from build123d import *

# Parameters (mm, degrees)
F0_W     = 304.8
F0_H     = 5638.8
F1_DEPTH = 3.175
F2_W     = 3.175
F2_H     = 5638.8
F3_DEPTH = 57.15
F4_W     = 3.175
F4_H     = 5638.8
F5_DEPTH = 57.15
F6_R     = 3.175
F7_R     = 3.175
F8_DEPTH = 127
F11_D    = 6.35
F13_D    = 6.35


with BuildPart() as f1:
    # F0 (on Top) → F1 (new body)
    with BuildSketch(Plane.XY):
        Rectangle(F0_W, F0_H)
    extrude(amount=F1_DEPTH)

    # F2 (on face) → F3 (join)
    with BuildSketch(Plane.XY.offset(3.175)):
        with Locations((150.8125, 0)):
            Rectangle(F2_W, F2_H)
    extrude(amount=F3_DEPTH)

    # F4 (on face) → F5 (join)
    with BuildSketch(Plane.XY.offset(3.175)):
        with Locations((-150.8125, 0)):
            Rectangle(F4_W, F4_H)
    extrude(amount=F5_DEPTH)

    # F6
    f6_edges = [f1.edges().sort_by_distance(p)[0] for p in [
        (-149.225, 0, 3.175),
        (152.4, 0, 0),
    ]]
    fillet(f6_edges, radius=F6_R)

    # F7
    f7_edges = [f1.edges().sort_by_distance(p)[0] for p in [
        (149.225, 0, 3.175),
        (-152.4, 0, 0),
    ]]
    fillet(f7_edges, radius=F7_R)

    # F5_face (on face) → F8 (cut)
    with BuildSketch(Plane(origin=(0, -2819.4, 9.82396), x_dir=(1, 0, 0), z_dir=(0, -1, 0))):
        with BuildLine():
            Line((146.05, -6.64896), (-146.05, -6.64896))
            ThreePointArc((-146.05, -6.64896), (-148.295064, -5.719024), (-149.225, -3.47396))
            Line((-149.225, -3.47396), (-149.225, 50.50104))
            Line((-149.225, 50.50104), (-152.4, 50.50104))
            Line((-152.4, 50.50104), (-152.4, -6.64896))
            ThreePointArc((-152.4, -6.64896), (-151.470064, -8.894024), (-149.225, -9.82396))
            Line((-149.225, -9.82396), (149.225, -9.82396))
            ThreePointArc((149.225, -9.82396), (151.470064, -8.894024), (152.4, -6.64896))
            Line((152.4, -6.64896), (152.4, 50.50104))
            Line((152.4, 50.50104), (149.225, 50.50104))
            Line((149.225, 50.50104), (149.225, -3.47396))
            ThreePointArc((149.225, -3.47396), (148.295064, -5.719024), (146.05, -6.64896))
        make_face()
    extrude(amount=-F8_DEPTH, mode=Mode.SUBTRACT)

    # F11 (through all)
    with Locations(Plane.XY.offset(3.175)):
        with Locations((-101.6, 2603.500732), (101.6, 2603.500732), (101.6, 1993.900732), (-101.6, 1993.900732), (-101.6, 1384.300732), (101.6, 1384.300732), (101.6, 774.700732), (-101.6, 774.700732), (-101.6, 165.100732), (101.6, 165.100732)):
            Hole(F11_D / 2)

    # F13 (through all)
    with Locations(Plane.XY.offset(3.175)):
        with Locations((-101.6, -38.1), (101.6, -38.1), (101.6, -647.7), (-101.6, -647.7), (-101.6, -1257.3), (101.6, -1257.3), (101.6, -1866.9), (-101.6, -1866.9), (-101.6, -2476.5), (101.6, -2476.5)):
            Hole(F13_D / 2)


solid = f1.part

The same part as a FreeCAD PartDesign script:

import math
import FreeCAD as App
import Part
import Sketcher
Q = App.Units.Quantity


def edges_at(feature, points):
    """Names of the edges that pass closest to the given points."""
    edges = feature.Shape.Edges
    near = lambda p: min(range(len(edges)), key=lambda i: edges[i].distToShape(Part.Vertex(*p))[0])
    return sorted({f"Edge{near(p) + 1}" for p in points})

doc = App.newDocument("Part")
body = doc.addObject("PartDesign::Body", "Body")

# Sketch on XY plane
sketch1 = body.newObject("Sketcher::SketchObject", "Sketch")
sketch1.AttachmentSupport = (doc.getObject("XY_Plane"), [""])
sketch1.MapMode = "FlatFace"
sketch1.addGeometry(Part.LineSegment(App.Vector(-152.4, 2819.4, 0), App.Vector(-152.4, -2819.4, 0)), False)
sketch1.addGeometry(Part.LineSegment(App.Vector(-152.4, -2819.4, 0), App.Vector(152.4, -2819.4, 0)), False)
sketch1.addGeometry(Part.LineSegment(App.Vector(152.4, -2819.4, 0), App.Vector(152.4, 2819.4, 0)), False)
sketch1.addGeometry(Part.LineSegment(App.Vector(152.4, 2819.4, 0), App.Vector(-152.4, 2819.4, 0)), False)
sketch1.addConstraint(Sketcher.Constraint("Coincident", 0, 2, 1, 1))
sketch1.addConstraint(Sketcher.Constraint("Coincident", 1, 2, 2, 1))
sketch1.addConstraint(Sketcher.Constraint("Coincident", 2, 2, 3, 1))
sketch1.addConstraint(Sketcher.Constraint("Coincident", 3, 2, 0, 1))
sketch1.addConstraint(Sketcher.Constraint("Vertical", 0))
sketch1.addConstraint(Sketcher.Constraint("Horizontal", 1))
sketch1.addConstraint(Sketcher.Constraint("Vertical", 2))
sketch1.addConstraint(Sketcher.Constraint("Horizontal", 3))
sketch1.addConstraint(Sketcher.Constraint("Symmetric", 0, 2, 2, 2, -1, 1))
sketch1.addConstraint(Sketcher.Constraint("DistanceX", 1, 1, 1, 2, Q("12 in")))
sketch1.addConstraint(Sketcher.Constraint("DistanceY", 0, 2, 0, 1, Q("222 in")))
pad1 = body.newObject("PartDesign::Pad", "Pad")
pad1.Profile = sketch1
pad1.Length = Q("0.125 in")

# Sketch on XY plane
sketch2 = body.newObject("Sketcher::SketchObject", "Sketch001")
sketch2.AttachmentSupport = (doc.getObject("XY_Plane"), [""])
sketch2.MapMode = "FlatFace"
sketch2.AttachmentOffset = App.Placement(App.Vector(0, 0, 0.125 * 25.4), App.Rotation())
sketch2.addGeometry(Part.LineSegment(App.Vector(149.225, 2819.4, 0), App.Vector(149.225, -2819.4, 0)), False)
sketch2.addGeometry(Part.LineSegment(App.Vector(149.225, -2819.4, 0), App.Vector(152.4, -2819.4, 0)), False)
sketch2.addGeometry(Part.LineSegment(App.Vector(152.4, -2819.4, 0), App.Vector(152.4, 2819.4, 0)), False)
sketch2.addGeometry(Part.LineSegment(App.Vector(152.4, 2819.4, 0), App.Vector(149.225, 2819.4, 0)), False)
sketch2.addConstraint(Sketcher.Constraint("Coincident", 0, 2, 1, 1))
sketch2.addConstraint(Sketcher.Constraint("Coincident", 1, 2, 2, 1))
sketch2.addConstraint(Sketcher.Constraint("Coincident", 2, 2, 3, 1))
sketch2.addConstraint(Sketcher.Constraint("Coincident", 3, 2, 0, 1))
sketch2.addConstraint(Sketcher.Constraint("Vertical", 0))
sketch2.addConstraint(Sketcher.Constraint("Horizontal", 1))
sketch2.addConstraint(Sketcher.Constraint("Vertical", 2))
sketch2.addConstraint(Sketcher.Constraint("Horizontal", 3))
sketch2.addConstraint(Sketcher.Constraint("DistanceY", 0, 2, 0, 1, Q("222 in")))
sketch2.addConstraint(Sketcher.Constraint("DistanceY", 0, 2, -1, 1, Q("111 in")))
sketch2.addConstraint(Sketcher.Constraint("DistanceX", -1, 1, 1, 2, Q("6 in")))
sketch2.addConstraint(Sketcher.Constraint("DistanceX", 1, 1, 1, 2, Q("0.125 in")))
pad2 = body.newObject("PartDesign::Pad", "Pad001")
pad2.Profile = sketch2
pad2.Length = Q("2.25 in")

# Sketch on XY plane
sketch3 = body.newObject("Sketcher::SketchObject", "Sketch002")
sketch3.AttachmentSupport = (doc.getObject("XY_Plane"), [""])
sketch3.MapMode = "FlatFace"
sketch3.AttachmentOffset = App.Placement(App.Vector(0, 0, 0.125 * 25.4), App.Rotation())
sketch3.addGeometry(Part.LineSegment(App.Vector(-152.4, 2819.4, 0), App.Vector(-152.4, -2819.4, 0)), False)
sketch3.addGeometry(Part.LineSegment(App.Vector(-152.4, -2819.4, 0), App.Vector(-149.225, -2819.4, 0)), False)
sketch3.addGeometry(Part.LineSegment(App.Vector(-149.225, -2819.4, 0), App.Vector(-149.225, 2819.4, 0)), False)
sketch3.addGeometry(Part.LineSegment(App.Vector(-149.225, 2819.4, 0), App.Vector(-152.4, 2819.4, 0)), False)
sketch3.addConstraint(Sketcher.Constraint("Coincident", 0, 2, 1, 1))
sketch3.addConstraint(Sketcher.Constraint("Coincident", 1, 2, 2, 1))
sketch3.addConstraint(Sketcher.Constraint("Coincident", 2, 2, 3, 1))
sketch3.addConstraint(Sketcher.Constraint("Coincident", 3, 2, 0, 1))
sketch3.addConstraint(Sketcher.Constraint("Vertical", 0))
sketch3.addConstraint(Sketcher.Constraint("Horizontal", 1))
sketch3.addConstraint(Sketcher.Constraint("Vertical", 2))
sketch3.addConstraint(Sketcher.Constraint("Horizontal", 3))
sketch3.addConstraint(Sketcher.Constraint("DistanceY", 0, 2, 0, 1, Q("222 in")))
sketch3.addConstraint(Sketcher.Constraint("DistanceX", 0, 2, -1, 1, Q("6 in")))
sketch3.addConstraint(Sketcher.Constraint("DistanceY", 0, 2, -1, 1, Q("111 in")))
sketch3.addConstraint(Sketcher.Constraint("DistanceX", 1, 1, 1, 2, Q("0.125 in")))
pad3 = body.newObject("PartDesign::Pad", "Pad002")
pad3.Profile = sketch3
pad3.Length = Q("2.25 in")
doc.recompute()

fillet = body.newObject("PartDesign::Fillet", "Fillet")
fillet.Base = (pad3, edges_at(pad3, [(-149.225, 0, 3.175), (152.4, 0, 0)]))
fillet.Radius = Q("0.125 in")
doc.recompute()

fillet2 = body.newObject("PartDesign::Fillet", "Fillet001")
fillet2.Base = (fillet, edges_at(fillet, [(149.225, 0, 3.175), (-152.4, 0, 0)]))
fillet2.Radius = Q("0.125 in")

# Sketch on XZ plane
sketch4 = body.newObject("Sketcher::SketchObject", "Sketch003")
sketch4.AttachmentSupport = (doc.getObject("XZ_Plane"), [""])
sketch4.MapMode = "FlatFace"
sketch4.AttachmentOffset = App.Placement(App.Vector(0, 0, 111 * 25.4), App.Rotation())
sketch4.addGeometry(Part.LineSegment(App.Vector(146.05, 3.175, 0), App.Vector(-146.05, 3.175, 0)), False)
sketch4.addGeometry(Part.ArcOfCircle(Part.Circle(App.Vector(-146.05, 6.35, 0), App.Vector(0, 0, 1), 3.175), math.radians(-179.999998), math.radians(-90.000002)), False)
sketch4.addGeometry(Part.LineSegment(App.Vector(-149.225, 6.35, 0), App.Vector(-149.225, 60.325, 0)), False)
sketch4.addGeometry(Part.LineSegment(App.Vector(-149.225, 60.325, 0), App.Vector(-152.4, 60.325, 0)), False)
sketch4.addGeometry(Part.LineSegment(App.Vector(-152.4, 60.325, 0), App.Vector(-152.4, 3.175, 0)), False)
sketch4.addGeometry(Part.ArcOfCircle(Part.Circle(App.Vector(-149.225, 3.175, 0), App.Vector(0, 0, 1), 3.175), math.radians(-179.999998), math.radians(-90.000002)), False)
sketch4.addGeometry(Part.LineSegment(App.Vector(-149.225, 0, 0), App.Vector(149.225, 0, 0)), False)
sketch4.addGeometry(Part.ArcOfCircle(Part.Circle(App.Vector(149.225, 3.175, 0), App.Vector(0, 0, 1), 3.175), math.radians(-89.999998), math.radians(-0.000002)), False)
sketch4.addGeometry(Part.LineSegment(App.Vector(152.4, 3.175, 0), App.Vector(152.4, 60.325, 0)), False)
sketch4.addGeometry(Part.LineSegment(App.Vector(152.4, 60.325, 0), App.Vector(149.225, 60.325, 0)), False)
sketch4.addGeometry(Part.LineSegment(App.Vector(149.225, 60.325, 0), App.Vector(149.225, 6.35, 0)), False)
sketch4.addGeometry(Part.ArcOfCircle(Part.Circle(App.Vector(146.05, 6.35, 0), App.Vector(0, 0, 1), 3.175), math.radians(-89.999998), math.radians(-0.000002)), False)
sketch4.addConstraint(Sketcher.Constraint("Tangent", 0, 2, 1, 2))
sketch4.addConstraint(Sketcher.Constraint("Tangent", 1, 1, 2, 1))
sketch4.addConstraint(Sketcher.Constraint("Coincident", 2, 2, 3, 1))
sketch4.addConstraint(Sketcher.Constraint("Coincident", 3, 2, 4, 1))
sketch4.addConstraint(Sketcher.Constraint("Tangent", 4, 2, 5, 1))
sketch4.addConstraint(Sketcher.Constraint("Tangent", 5, 2, 6, 1))
sketch4.addConstraint(Sketcher.Constraint("Tangent", 6, 2, 7, 1))
sketch4.addConstraint(Sketcher.Constraint("Tangent", 7, 2, 8, 1))
sketch4.addConstraint(Sketcher.Constraint("Coincident", 8, 2, 9, 1))
sketch4.addConstraint(Sketcher.Constraint("Coincident", 9, 2, 10, 1))
sketch4.addConstraint(Sketcher.Constraint("Tangent", 10, 2, 11, 2))
sketch4.addConstraint(Sketcher.Constraint("Tangent", 11, 1, 0, 1))
sketch4.addConstraint(Sketcher.Constraint("Horizontal", 0))
sketch4.addConstraint(Sketcher.Constraint("Vertical", 2))
sketch4.addConstraint(Sketcher.Constraint("Horizontal", 3))
sketch4.addConstraint(Sketcher.Constraint("Vertical", 4))
sketch4.addConstraint(Sketcher.Constraint("Horizontal", 6))
sketch4.addConstraint(Sketcher.Constraint("Vertical", 8))
sketch4.addConstraint(Sketcher.Constraint("Horizontal", 9))
sketch4.addConstraint(Sketcher.Constraint("Vertical", 10))
sketch4.addConstraint(Sketcher.Constraint("Equal", 1, 5))
sketch4.addConstraint(Sketcher.Constraint("Equal", 5, 7))
sketch4.addConstraint(Sketcher.Constraint("Equal", 7, 11))
sketch4.addConstraint(Sketcher.Constraint("Symmetric", 5, 2, 6, 2, -1, 1))
sketch4.addConstraint(Sketcher.Constraint("Symmetric", 2, 2, 9, 2, -2))
sketch4.addConstraint(Sketcher.Constraint("Horizontal", 7, 3, 0, 2))
sketch4.addConstraint(Sketcher.Constraint("Vertical", 5, 3, 1, 1))
sketch4.addConstraint(Sketcher.Constraint("DistanceX", 0, 2, 0, 1, Q("11.5 in")))
sketch4.addConstraint(Sketcher.Constraint("DistanceX", 3, 2, -1, 1, Q("6 in")))
sketch4.addConstraint(Sketcher.Constraint("DistanceY", 4, 2, 4, 1, Q("2.25 in")))
pocket1 = body.newObject("PartDesign::Pocket", "Pocket")
pocket1.Profile = sketch4
pocket1.Length = Q("5 in")

# Sketch on XY plane
sketch5 = body.newObject("Sketcher::SketchObject", "Sketch004")
sketch5.AttachmentSupport = (doc.getObject("XY_Plane"), [""])
sketch5.MapMode = "FlatFace"
sketch5.AttachmentOffset = App.Placement(App.Vector(0, 0, 0.125 * 25.4), App.Rotation())
sketch5.addGeometry(Part.Circle(App.Vector(-101.6, 2603.500732, 0), App.Vector(0, 0, 1), 3.175), False)
sketch5.addGeometry(Part.Circle(App.Vector(101.6, 2603.500732, 0), App.Vector(0, 0, 1), 3.175), False)
sketch5.addGeometry(Part.Circle(App.Vector(101.6, 1993.900732, 0), App.Vector(0, 0, 1), 3.175), False)
sketch5.addGeometry(Part.Circle(App.Vector(-101.6, 1993.900732, 0), App.Vector(0, 0, 1), 3.175), False)
sketch5.addGeometry(Part.Circle(App.Vector(-101.6, 1384.300732, 0), App.Vector(0, 0, 1), 3.175), False)
sketch5.addGeometry(Part.Circle(App.Vector(101.6, 1384.300732, 0), App.Vector(0, 0, 1), 3.175), False)
sketch5.addGeometry(Part.Circle(App.Vector(101.6, 774.700732, 0), App.Vector(0, 0, 1), 3.175), False)
sketch5.addGeometry(Part.Circle(App.Vector(-101.6, 774.700732, 0), App.Vector(0, 0, 1), 3.175), False)
sketch5.addGeometry(Part.Circle(App.Vector(-101.6, 165.100732, 0), App.Vector(0, 0, 1), 3.175), False)
sketch5.addGeometry(Part.Circle(App.Vector(101.6, 165.100732, 0), App.Vector(0, 0, 1), 3.175), False)
sketch5.addConstraint(Sketcher.Constraint("Equal", 0, 1))
sketch5.addConstraint(Sketcher.Constraint("Equal", 1, 2))
sketch5.addConstraint(Sketcher.Constraint("Equal", 2, 3))
sketch5.addConstraint(Sketcher.Constraint("Equal", 3, 4))
sketch5.addConstraint(Sketcher.Constraint("Equal", 4, 5))
sketch5.addConstraint(Sketcher.Constraint("Equal", 5, 6))
sketch5.addConstraint(Sketcher.Constraint("Equal", 6, 7))
sketch5.addConstraint(Sketcher.Constraint("Equal", 7, 8))
sketch5.addConstraint(Sketcher.Constraint("Equal", 8, 9))
sketch5.addConstraint(Sketcher.Constraint("Symmetric", 0, 3, 1, 3, -2))
sketch5.addConstraint(Sketcher.Constraint("Symmetric", 2, 3, 3, 3, -2))
sketch5.addConstraint(Sketcher.Constraint("Symmetric", 4, 3, 5, 3, -2))
sketch5.addConstraint(Sketcher.Constraint("Symmetric", 6, 3, 7, 3, -2))
sketch5.addConstraint(Sketcher.Constraint("Symmetric", 8, 3, 9, 3, -2))
sketch5.addConstraint(Sketcher.Constraint("Vertical", 1, 3, 2, 3))
sketch5.addConstraint(Sketcher.Constraint("Vertical", 3, 3, 4, 3))
sketch5.addConstraint(Sketcher.Constraint("Vertical", 5, 3, 6, 3))
sketch5.addConstraint(Sketcher.Constraint("Vertical", 7, 3, 8, 3))
sketch5.addConstraint(Sketcher.Constraint("Diameter", 0, Q("0.25 in")))
sketch5.addConstraint(Sketcher.Constraint("DistanceX", 0, 3, -1, 1, Q("4 in")))
sketch5.addConstraint(Sketcher.Constraint("DistanceY", 2, 3, 1, 3, Q("24 in")))
sketch5.addConstraint(Sketcher.Constraint("DistanceY", 4, 3, 3, 3, Q("24 in")))
sketch5.addConstraint(Sketcher.Constraint("DistanceY", 6, 3, 5, 3, Q("24 in")))
sketch5.addConstraint(Sketcher.Constraint("DistanceY", 8, 3, 7, 3, Q("24 in")))
sketch5.addConstraint(Sketcher.Constraint("DistanceY", -1, 1, 0, 3, 2603.500732))
doc.recompute()
hole = body.newObject("PartDesign::Hole", "Hole")
hole.Profile = sketch5
hole.ThreadType = "None"
hole.Diameter = Q("0.25 in")
hole.DepthType = "ThroughAll"

# Sketch on XY plane
sketch6 = body.newObject("Sketcher::SketchObject", "Sketch005")
sketch6.AttachmentSupport = (doc.getObject("XY_Plane"), [""])
sketch6.MapMode = "FlatFace"
sketch6.AttachmentOffset = App.Placement(App.Vector(0, 0, 0.125 * 25.4), App.Rotation())
sketch6.addGeometry(Part.Circle(App.Vector(-101.6, -38.1, 0), App.Vector(0, 0, 1), 3.175), False)
sketch6.addGeometry(Part.Circle(App.Vector(101.6, -38.1, 0), App.Vector(0, 0, 1), 3.175), False)
sketch6.addGeometry(Part.Circle(App.Vector(101.6, -647.7, 0), App.Vector(0, 0, 1), 3.175), False)
sketch6.addGeometry(Part.Circle(App.Vector(-101.6, -647.7, 0), App.Vector(0, 0, 1), 3.175), False)
sketch6.addGeometry(Part.Circle(App.Vector(-101.6, -1257.3, 0), App.Vector(0, 0, 1), 3.175), False)
sketch6.addGeometry(Part.Circle(App.Vector(101.6, -1257.3, 0), App.Vector(0, 0, 1), 3.175), False)
sketch6.addGeometry(Part.Circle(App.Vector(101.6, -1866.9, 0), App.Vector(0, 0, 1), 3.175), False)
sketch6.addGeometry(Part.Circle(App.Vector(-101.6, -1866.9, 0), App.Vector(0, 0, 1), 3.175), False)
sketch6.addGeometry(Part.Circle(App.Vector(-101.6, -2476.5, 0), App.Vector(0, 0, 1), 3.175), False)
sketch6.addGeometry(Part.Circle(App.Vector(101.6, -2476.5, 0), App.Vector(0, 0, 1), 3.175), False)
sketch6.addConstraint(Sketcher.Constraint("Equal", 0, 1))
sketch6.addConstraint(Sketcher.Constraint("Equal", 1, 2))
sketch6.addConstraint(Sketcher.Constraint("Equal", 2, 3))
sketch6.addConstraint(Sketcher.Constraint("Equal", 3, 4))
sketch6.addConstraint(Sketcher.Constraint("Equal", 4, 5))
sketch6.addConstraint(Sketcher.Constraint("Equal", 5, 6))
sketch6.addConstraint(Sketcher.Constraint("Equal", 6, 7))
sketch6.addConstraint(Sketcher.Constraint("Equal", 7, 8))
sketch6.addConstraint(Sketcher.Constraint("Equal", 8, 9))
sketch6.addConstraint(Sketcher.Constraint("Symmetric", 0, 3, 1, 3, -2))
sketch6.addConstraint(Sketcher.Constraint("Symmetric", 2, 3, 3, 3, -2))
sketch6.addConstraint(Sketcher.Constraint("Symmetric", 4, 3, 5, 3, -2))
sketch6.addConstraint(Sketcher.Constraint("Symmetric", 6, 3, 7, 3, -2))
sketch6.addConstraint(Sketcher.Constraint("Symmetric", 8, 3, 9, 3, -2))
sketch6.addConstraint(Sketcher.Constraint("Vertical", 1, 3, 2, 3))
sketch6.addConstraint(Sketcher.Constraint("Vertical", 3, 3, 4, 3))
sketch6.addConstraint(Sketcher.Constraint("Vertical", 5, 3, 6, 3))
sketch6.addConstraint(Sketcher.Constraint("Vertical", 7, 3, 8, 3))
sketch6.addConstraint(Sketcher.Constraint("Diameter", 0, Q("0.25 in")))
sketch6.addConstraint(Sketcher.Constraint("DistanceX", 0, 3, -1, 1, Q("4 in")))
sketch6.addConstraint(Sketcher.Constraint("DistanceY", 2, 3, 1, 3, Q("24 in")))
sketch6.addConstraint(Sketcher.Constraint("DistanceY", 4, 3, 3, 3, Q("24 in")))
sketch6.addConstraint(Sketcher.Constraint("DistanceY", 6, 3, 5, 3, Q("24 in")))
sketch6.addConstraint(Sketcher.Constraint("DistanceY", 8, 3, 7, 3, Q("24 in")))
sketch6.addConstraint(Sketcher.Constraint("DistanceY", 0, 3, -1, 1, Q("1.5 in")))
doc.recompute()
hole2 = body.newObject("PartDesign::Hole", "Hole001")
hole2.Profile = sketch6
hole2.ThreadType = "None"
hole2.Diameter = Q("0.25 in")
hole2.DepthType = "ThroughAll"

doc.recompute()
